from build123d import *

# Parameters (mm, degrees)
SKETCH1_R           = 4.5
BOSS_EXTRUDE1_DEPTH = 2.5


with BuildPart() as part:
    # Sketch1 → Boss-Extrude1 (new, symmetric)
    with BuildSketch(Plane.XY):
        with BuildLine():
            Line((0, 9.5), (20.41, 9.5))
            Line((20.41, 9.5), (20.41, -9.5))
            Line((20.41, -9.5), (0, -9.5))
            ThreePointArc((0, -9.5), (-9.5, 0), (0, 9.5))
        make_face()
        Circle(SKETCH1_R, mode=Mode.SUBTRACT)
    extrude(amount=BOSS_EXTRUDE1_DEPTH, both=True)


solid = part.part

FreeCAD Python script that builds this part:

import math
import FreeCAD as App
import Part
import Sketcher

V = App.Vector
Q = App.Units.Quantity

doc = App.newDocument("Part")
body = doc.addObject("PartDesign::Body", "Body")

# Sketch on XY plane
sketch1 = body.newObject("Sketcher::SketchObject", "Sketch")
sketch1.AttachmentSupport = (doc.getObject("XY_Plane"), [""])
sketch1.MapMode = "FlatFace"
sketch1.addGeometry([
    Part.LineSegment(V(20.4, 9.5, 0), V(0, 9.5, 0)),  # 0
    Part.ArcOfCircle(Part.Circle(V(0, 0, 0), V(0, 0, 1), 9.5), math.radians(90), math.radians(270)),  # 1
    Part.LineSegment(V(0, -9.5, 0), V(20.4, -9.5, 0)),  # 2
    Part.LineSegment(V(20.4, -9.5, 0), V(20.4, 9.5, 0)),  # 3
    Part.Circle(V(0, 0, 0), V(0, 0, 1), 4.5),  # 4
], False)
sketch1.addConstraint([
    Sketcher.Constraint("Tangent", 0, 2, 1, 1),
    Sketcher.Constraint("Tangent", 1, 2, 2, 1),
    Sketcher.Constraint("Coincident", 2, 2, 3, 1),
    Sketcher.Constraint("Coincident", 3, 2, 0, 1),
    Sketcher.Constraint("Horizontal", 0),
    Sketcher.Constraint("Horizontal", 2),
    Sketcher.Constraint("Vertical", 3),
    Sketcher.Constraint("Coincident", 1, 3, -1, 1),
    Sketcher.Constraint("Coincident", 4, 3, -1, 1),
    Sketcher.Constraint("Diameter", 4, Q("9 mm")),
    Sketcher.Constraint("Radius", 1, Q("9.5 mm")),
    Sketcher.Constraint("DistanceX", 0, 2, 0, 1, Q("20.41 mm")),
])
pad1 = body.newObject("PartDesign::Pad", "Pad")
pad1.Profile = sketch1
pad1.Length = 5
pad1.Midplane = True

doc.recompute()
